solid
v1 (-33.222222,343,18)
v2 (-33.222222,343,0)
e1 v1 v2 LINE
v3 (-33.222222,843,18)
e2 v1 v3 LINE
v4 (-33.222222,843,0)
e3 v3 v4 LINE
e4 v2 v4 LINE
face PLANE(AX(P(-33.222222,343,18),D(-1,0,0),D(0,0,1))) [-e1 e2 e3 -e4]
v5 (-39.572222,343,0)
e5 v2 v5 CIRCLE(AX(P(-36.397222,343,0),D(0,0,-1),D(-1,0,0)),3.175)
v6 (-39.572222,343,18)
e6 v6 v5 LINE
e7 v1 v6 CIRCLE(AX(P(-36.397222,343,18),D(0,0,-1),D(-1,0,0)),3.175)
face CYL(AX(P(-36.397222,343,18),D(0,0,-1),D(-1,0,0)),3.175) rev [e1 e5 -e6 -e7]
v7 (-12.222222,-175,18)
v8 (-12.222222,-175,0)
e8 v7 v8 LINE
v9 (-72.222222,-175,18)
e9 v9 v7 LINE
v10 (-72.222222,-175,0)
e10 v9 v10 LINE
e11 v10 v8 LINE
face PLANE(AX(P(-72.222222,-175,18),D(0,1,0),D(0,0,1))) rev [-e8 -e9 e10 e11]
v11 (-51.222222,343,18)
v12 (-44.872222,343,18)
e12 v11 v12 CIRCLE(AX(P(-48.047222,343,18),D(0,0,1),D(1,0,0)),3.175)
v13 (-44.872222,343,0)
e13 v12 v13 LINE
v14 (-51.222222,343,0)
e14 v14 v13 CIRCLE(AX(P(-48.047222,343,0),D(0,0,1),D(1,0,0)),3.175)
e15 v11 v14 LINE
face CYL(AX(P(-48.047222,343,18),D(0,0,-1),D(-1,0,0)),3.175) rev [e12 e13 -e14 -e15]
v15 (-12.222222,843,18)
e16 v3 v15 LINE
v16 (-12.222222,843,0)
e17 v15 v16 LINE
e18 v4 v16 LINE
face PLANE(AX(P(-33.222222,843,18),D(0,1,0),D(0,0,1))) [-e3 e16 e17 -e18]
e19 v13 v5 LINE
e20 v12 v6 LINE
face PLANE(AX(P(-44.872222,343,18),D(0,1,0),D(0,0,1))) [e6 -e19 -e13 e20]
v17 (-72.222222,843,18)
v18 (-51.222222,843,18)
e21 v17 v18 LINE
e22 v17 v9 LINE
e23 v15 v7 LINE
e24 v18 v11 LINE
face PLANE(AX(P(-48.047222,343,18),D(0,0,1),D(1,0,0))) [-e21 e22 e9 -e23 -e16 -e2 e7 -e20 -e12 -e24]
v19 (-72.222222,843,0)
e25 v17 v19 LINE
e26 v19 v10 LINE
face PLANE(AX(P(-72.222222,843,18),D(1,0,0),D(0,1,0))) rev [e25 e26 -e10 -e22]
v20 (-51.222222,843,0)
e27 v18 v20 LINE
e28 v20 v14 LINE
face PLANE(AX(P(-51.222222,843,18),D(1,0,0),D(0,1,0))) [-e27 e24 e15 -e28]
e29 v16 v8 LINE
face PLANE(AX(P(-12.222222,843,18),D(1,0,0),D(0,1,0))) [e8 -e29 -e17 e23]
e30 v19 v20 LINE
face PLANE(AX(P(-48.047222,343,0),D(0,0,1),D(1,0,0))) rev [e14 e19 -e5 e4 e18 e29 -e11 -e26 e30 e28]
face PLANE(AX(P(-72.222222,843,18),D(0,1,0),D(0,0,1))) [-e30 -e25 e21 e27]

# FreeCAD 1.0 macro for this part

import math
import FreeCAD as App
import Part
import Sketcher

V = App.Vector

doc = App.newDocument("Part")
body = doc.addObject("PartDesign::Body", "Body")

# Sketch on XY plane
sketch1 = body.newObject("Sketcher::SketchObject", "Sketch")
sketch1.AttachmentSupport = (doc.getObject("XY_Plane"), [""])
sketch1.MapMode = "FlatFace"
sketch1.addGeometry([
    Part.LineSegment(V(-51.2, 343, 0), V(-51.2, 843, 0)),  # 0
    Part.LineSegment(V(-51.2, 843, 0), V(-72.2, 843, 0)),  # 1
    Part.LineSegment(V(-72.2, 843, 0), V(-72.2, -175, 0)),  # 2
    Part.LineSegment(V(-72.2, -175, 0), V(-12.2, -175, 0)),  # 3
    Part.LineSegment(V(-12.2, -175, 0), V(-12.2, 843, 0)),  # 4
    Part.LineSegment(V(-12.2, 843, 0), V(-33.2, 843, 0)),  # 5
    Part.LineSegment(V(-33.2, 843, 0), V(-33.2, 343, 0)),  # 6
    Part.ArcOfCircle(Part.Circle(V(-36.4, 343, 0), V(0, 0, 1), 3.2), math.radians(180), math.radians(360)),  # 7
    Part.LineSegment(V(-39.6, 343, 0), V(-44.9, 343, 0)),  # 8
    Part.ArcOfCircle(Part.Circle(V(-48, 343, 0), V(0, 0, 1), 3.2), math.radians(180), math.radians(360)),  # 9
], False)
sketch1.addConstraint([
    Sketcher.Constraint("Coincident", 0, 2, 1, 1),
    Sketcher.Constraint("Coincident", 1, 2, 2, 1),
    Sketcher.Constraint("Coincident", 2, 2, 3, 1),
    Sketcher.Constraint("Coincident", 3, 2, 4, 1),
    Sketcher.Constraint("Coincident", 4, 2, 5, 1),
    Sketcher.Constraint("Coincident", 5, 2, 6, 1),
    Sketcher.Constraint("Tangent", 6, 2, 7, 2),
    Sketcher.Constraint("Coincident", 7, 1, 8, 1),
    Sketcher.Constraint("Coincident", 8, 2, 9, 2),
    Sketcher.Constraint("Tangent", 9, 1, 0, 1),
    Sketcher.Constraint("Vertical", 0),
    Sketcher.Constraint("Horizontal", 1),
    Sketcher.Constraint("Vertical", 2),
    Sketcher.Constraint("Horizontal", 3),
    Sketcher.Constraint("Vertical", 4),
    Sketcher.Constraint("Horizontal", 5),
    Sketcher.Constraint("Vertical", 6),
    Sketcher.Constraint("Horizontal", 8),
    Sketcher.Constraint("Equal", 7, 9),
    Sketcher.Constraint("Horizontal", 7, 3, 9, 3),
    Sketcher.Constraint("Horizontal", 1, 2, 4, 2),
    Sketcher.Constraint("Horizontal", 6, 2, 7, 1),
    Sketcher.Constraint("Equal", 1, 5),
    Sketcher.Constraint("DistanceX", 1, 2, 1, 1, 21.0),
    Sketcher.Constraint("DistanceX", 3, 1, 3, 2, 60.0),
    Sketcher.Constraint("DistanceY", 0, 1, 0, 2, 500.0),
    Sketcher.Constraint("DistanceY", 2, 2, 2, 1, 1018.0),
    Sketcher.Constraint("DistanceX", 8, 2, 8, 1, 5.3),
    Sketcher.Constraint("DistanceY", -1, 1, 7, 3, 343.0),
    Sketcher.Constraint("DistanceX", 7, 3, -1, 1, 36.397222),
])
pad1 = body.newObject("PartDesign::Pad", "Pad")
pad1.Profile = sketch1
pad1.Length = 18

doc.recompute()
